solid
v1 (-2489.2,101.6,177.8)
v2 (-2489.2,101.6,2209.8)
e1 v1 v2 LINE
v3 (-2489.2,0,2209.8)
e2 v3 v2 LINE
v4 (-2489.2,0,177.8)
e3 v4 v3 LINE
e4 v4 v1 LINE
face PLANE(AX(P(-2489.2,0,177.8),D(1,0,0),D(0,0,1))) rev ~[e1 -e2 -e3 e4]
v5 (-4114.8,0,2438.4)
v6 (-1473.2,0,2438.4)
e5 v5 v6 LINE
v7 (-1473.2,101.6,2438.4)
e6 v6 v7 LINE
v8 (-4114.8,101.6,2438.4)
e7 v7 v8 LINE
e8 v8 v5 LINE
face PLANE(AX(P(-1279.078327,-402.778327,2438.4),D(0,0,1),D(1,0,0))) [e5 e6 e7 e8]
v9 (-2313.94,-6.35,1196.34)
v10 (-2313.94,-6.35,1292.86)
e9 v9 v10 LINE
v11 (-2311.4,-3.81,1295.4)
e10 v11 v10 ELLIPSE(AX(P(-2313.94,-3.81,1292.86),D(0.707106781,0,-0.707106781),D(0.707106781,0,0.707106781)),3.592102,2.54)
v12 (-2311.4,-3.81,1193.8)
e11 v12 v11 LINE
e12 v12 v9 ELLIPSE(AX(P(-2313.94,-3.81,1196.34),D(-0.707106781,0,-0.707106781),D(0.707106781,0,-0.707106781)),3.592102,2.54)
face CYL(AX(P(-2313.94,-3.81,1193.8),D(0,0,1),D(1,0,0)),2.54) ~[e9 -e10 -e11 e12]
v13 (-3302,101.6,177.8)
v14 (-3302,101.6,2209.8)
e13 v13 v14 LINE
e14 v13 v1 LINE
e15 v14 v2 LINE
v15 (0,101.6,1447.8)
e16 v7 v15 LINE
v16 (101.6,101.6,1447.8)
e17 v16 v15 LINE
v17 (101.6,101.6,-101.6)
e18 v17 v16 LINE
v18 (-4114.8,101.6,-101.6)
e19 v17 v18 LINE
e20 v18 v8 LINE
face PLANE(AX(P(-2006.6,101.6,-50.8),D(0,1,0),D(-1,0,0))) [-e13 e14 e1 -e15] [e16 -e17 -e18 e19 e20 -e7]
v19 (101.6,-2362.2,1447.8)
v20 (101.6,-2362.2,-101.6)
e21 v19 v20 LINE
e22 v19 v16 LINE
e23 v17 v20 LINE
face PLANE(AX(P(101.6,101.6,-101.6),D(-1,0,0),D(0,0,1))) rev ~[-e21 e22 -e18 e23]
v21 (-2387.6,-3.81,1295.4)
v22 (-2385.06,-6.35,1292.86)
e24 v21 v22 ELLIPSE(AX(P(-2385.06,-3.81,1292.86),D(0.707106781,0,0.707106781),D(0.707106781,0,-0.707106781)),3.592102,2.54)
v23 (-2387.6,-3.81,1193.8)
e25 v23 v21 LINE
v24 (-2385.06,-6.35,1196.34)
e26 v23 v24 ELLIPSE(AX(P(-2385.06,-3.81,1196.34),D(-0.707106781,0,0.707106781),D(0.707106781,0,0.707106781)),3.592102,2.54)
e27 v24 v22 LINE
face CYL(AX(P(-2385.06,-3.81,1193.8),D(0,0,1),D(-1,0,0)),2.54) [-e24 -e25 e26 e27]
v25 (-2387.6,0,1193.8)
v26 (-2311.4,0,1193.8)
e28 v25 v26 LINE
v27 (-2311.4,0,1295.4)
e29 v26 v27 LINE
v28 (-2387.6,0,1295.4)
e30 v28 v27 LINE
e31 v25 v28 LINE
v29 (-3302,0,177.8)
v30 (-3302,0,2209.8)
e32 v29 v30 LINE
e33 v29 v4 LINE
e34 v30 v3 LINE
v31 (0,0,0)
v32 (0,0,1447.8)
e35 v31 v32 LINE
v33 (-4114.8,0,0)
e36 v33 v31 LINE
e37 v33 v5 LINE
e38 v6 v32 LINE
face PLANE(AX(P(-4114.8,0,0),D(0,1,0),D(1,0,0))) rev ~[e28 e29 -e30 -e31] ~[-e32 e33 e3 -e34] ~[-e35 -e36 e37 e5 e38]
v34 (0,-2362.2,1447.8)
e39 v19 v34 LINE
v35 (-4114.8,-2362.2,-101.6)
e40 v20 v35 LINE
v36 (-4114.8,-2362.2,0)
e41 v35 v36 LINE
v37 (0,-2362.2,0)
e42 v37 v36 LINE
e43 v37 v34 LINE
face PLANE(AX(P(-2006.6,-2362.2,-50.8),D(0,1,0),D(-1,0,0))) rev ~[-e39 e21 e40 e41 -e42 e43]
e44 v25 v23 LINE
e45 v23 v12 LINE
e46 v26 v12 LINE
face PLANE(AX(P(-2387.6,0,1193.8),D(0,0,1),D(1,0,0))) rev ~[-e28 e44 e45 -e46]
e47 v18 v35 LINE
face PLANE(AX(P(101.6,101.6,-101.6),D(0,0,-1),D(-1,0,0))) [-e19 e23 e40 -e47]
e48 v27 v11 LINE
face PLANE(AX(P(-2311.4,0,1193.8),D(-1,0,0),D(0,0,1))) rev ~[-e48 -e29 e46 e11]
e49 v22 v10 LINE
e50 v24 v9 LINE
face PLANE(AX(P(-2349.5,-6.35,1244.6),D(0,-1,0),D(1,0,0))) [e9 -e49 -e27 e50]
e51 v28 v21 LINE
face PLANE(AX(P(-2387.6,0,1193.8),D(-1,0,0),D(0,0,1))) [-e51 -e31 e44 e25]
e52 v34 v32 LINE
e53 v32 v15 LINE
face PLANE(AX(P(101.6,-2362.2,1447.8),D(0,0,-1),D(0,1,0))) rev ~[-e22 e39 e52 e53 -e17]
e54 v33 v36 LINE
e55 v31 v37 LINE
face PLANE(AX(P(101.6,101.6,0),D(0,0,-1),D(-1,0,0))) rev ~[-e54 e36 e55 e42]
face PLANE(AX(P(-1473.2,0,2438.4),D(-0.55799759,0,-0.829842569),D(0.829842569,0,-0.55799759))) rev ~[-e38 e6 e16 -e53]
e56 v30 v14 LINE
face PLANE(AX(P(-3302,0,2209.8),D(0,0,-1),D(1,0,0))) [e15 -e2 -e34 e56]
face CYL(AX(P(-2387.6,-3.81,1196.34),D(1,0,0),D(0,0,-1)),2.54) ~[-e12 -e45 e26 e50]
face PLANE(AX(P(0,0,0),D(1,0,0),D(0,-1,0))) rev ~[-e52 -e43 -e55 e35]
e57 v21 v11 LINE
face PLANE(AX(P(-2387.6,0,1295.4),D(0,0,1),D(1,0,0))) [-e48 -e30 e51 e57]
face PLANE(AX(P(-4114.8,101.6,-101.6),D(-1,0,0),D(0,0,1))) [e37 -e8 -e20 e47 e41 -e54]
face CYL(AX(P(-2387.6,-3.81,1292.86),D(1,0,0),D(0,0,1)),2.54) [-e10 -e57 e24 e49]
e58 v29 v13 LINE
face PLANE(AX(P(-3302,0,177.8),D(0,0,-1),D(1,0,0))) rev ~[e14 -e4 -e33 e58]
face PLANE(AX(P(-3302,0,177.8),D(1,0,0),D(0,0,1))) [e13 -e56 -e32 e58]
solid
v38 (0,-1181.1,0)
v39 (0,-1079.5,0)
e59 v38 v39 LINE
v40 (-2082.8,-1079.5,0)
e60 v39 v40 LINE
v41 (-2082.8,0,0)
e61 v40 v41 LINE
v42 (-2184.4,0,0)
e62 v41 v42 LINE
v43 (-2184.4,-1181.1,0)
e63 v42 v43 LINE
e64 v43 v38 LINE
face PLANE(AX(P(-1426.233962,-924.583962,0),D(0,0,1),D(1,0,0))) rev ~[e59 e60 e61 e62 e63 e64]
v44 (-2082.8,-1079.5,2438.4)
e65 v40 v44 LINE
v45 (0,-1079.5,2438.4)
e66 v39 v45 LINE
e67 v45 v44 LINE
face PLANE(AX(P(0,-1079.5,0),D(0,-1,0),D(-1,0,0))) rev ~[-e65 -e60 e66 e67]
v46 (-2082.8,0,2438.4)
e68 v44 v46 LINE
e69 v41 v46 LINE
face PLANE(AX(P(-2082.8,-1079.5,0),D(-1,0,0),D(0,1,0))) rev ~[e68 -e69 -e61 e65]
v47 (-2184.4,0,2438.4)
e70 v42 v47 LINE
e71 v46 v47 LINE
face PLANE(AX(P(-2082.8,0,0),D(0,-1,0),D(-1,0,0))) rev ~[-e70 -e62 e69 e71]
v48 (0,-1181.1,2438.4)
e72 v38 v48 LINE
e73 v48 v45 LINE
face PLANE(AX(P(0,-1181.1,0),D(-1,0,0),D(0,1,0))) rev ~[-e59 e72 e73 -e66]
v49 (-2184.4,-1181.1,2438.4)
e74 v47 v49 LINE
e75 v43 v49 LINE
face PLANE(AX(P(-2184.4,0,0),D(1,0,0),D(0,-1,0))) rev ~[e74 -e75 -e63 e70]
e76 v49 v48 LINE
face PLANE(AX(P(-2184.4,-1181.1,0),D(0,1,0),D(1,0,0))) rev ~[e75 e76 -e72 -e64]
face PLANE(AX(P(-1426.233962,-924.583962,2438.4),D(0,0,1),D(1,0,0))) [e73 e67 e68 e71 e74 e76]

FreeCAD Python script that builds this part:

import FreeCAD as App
import Part
import Sketcher
Q = App.Units.Quantity


def edges_at(feature, points):
    """Names of the edges that pass closest to the given points."""
    edges = feature.Shape.Edges
    near = lambda p: min(range(len(edges)), key=lambda i: edges[i].distToShape(Part.Vertex(*p))[0])
    return sorted({f"Edge{near(p) + 1}" for p in points})

doc = App.newDocument("Part")
body = doc.addObject("PartDesign::Body", "Body")

# Sketch on XY plane
sketch1 = body.newObject("Sketcher::SketchObject", "Sketch")
sketch1.AttachmentSupport = (doc.getObject("XY_Plane"), [""])
sketch1.MapMode = "FlatFace"
sketch1.addGeometry(Part.LineSegment(App.Vector(-4115, 0, 0), App.Vector(0, 0, 0)), False)
sketch1.addGeometry(Part.LineSegment(App.Vector(0, 0, 0), App.Vector(0, -2362, 0)), False)
sketch1.addGeometry(Part.LineSegment(App.Vector(0, -2362, 0), App.Vector(102, -2362, 0)), False)
sketch1.addGeometry(Part.LineSegment(App.Vector(102, -2362, 0), App.Vector(102, 102, 0)), False)
sketch1.addGeometry(Part.LineSegment(App.Vector(102, 102, 0), App.Vector(-4115, 102, 0)), False)
sketch1.addGeometry(Part.LineSegment(App.Vector(-4115, 102, 0), App.Vector(-4115, 0, 0)), False)
sketch1.addConstraint(Sketcher.Constraint("Coincident", 0, 2, 1, 1))
sketch1.addConstraint(Sketcher.Constraint("Coincident", 1, 2, 2, 1))
sketch1.addConstraint(Sketcher.Constraint("Coincident", 2, 2, 3, 1))
sketch1.addConstraint(Sketcher.Constraint("Coincident", 3, 2, 4, 1))
sketch1.addConstraint(Sketcher.Constraint("Coincident", 4, 2, 5, 1))
sketch1.addConstraint(Sketcher.Constraint("Coincident", 5, 2, 0, 1))
sketch1.addConstraint(Sketcher.Constraint("Horizontal", 0))
sketch1.addConstraint(Sketcher.Constraint("Vertical", 1))
sketch1.addConstraint(Sketcher.Constraint("Horizontal", 2))
sketch1.addConstraint(Sketcher.Constraint("Vertical", 3))
sketch1.addConstraint(Sketcher.Constraint("Horizontal", 4))
sketch1.addConstraint(Sketcher.Constraint("Vertical", 5))
sketch1.addConstraint(Sketcher.Constraint("Coincident", 0, 2, -1, 1))
sketch1.addConstraint(Sketcher.Constraint("Equal", 2, 5))
sketch1.addConstraint(Sketcher.Constraint("DistanceX", 0, 1, 0, 2, Q("162 in")))
sketch1.addConstraint(Sketcher.Constraint("DistanceX", 2, 1, 2, 2, Q("4 in")))
sketch1.addConstraint(Sketcher.Constraint("DistanceY", 1, 2, 1, 1, Q("93 in")))
pad1 = body.newObject("PartDesign::Pad", "Pad")
pad1.Profile = sketch1
pad1.Length = Q("96 in")

# Sketch on XZ plane
sketch2 = body.newObject("Sketcher::SketchObject", "Sketch001")
sketch2.AttachmentSupport = (doc.getObject("XZ_Plane"), [""])
sketch2.MapMode = "FlatFace"
sketch2.addGeometry(Part.LineSegment(App.Vector(-3302, 2210, 0), App.Vector(-3302, 178, 0)), False)
sketch2.addGeometry(Part.LineSegment(App.Vector(-3302, 178, 0), App.Vector(-2489, 178, 0)), False)
sketch2.addGeometry(Part.LineSegment(App.Vector(-2489, 178, 0), App.Vector(-2489, 2210, 0)), False)
sketch2.addGeometry(Part.LineSegment(App.Vector(-2489, 2210, 0), App.Vector(-3302, 2210, 0)), False)
sketch2.addGeometry(Part.LineSegment(App.Vector(-1473, 2438, 0), App.Vector(0, 1448, 0)), False)
sketch2.addGeometry(Part.LineSegment(App.Vector(0, 1448, 0), App.Vector(0, 2438, 0)), False)
sketch2.addGeometry(Part.LineSegment(App.Vector(0, 2438, 0), App.Vector(-1473, 2438, 0)), False)
sketch2.addConstraint(Sketcher.Constraint("Coincident", 0, 2, 1, 1))
sketch2.addConstraint(Sketcher.Constraint("Coincident", 1, 2, 2, 1))
sketch2.addConstraint(Sketcher.Constraint("Coincident", 2, 2, 3, 1))
sketch2.addConstraint(Sketcher.Constraint("Coincident", 3, 2, 0, 1))
sketch2.addConstraint(Sketcher.Constraint("Coincident", 4, 2, 5, 1))
sketch2.addConstraint(Sketcher.Constraint("Coincident", 5, 2, 6, 1))
sketch2.addConstraint(Sketcher.Constraint("Coincident", 6, 2, 4, 1))
sketch2.addConstraint(Sketcher.Constraint("Vertical", 0))
sketch2.addConstraint(Sketcher.Constraint("Horizontal", 1))
sketch2.addConstraint(Sketcher.Constraint("Vertical", 2))
sketch2.addConstraint(Sketcher.Constraint("Horizontal", 3))
sketch2.addConstraint(Sketcher.Constraint("Vertical", 5))
sketch2.addConstraint(Sketcher.Constraint("Horizontal", 6))
sketch2.addConstraint(Sketcher.Constraint("PointOnObject", 4, 2, -2))
sketch2.addConstraint(Sketcher.Constraint("DistanceX", 1, 1, 1, 2, Q("32 in")))
sketch2.addConstraint(Sketcher.Constraint("DistanceX", 6, 2, 6, 1, Q("58 in")))
sketch2.addConstraint(Sketcher.Constraint("DistanceY", 0, 2, 0, 1, Q("80 in")))
sketch2.addConstraint(Sketcher.Constraint("DistanceY", 5, 1, 5, 2, Q("39 in")))
sketch2.addConstraint(Sketcher.Constraint("DistanceX", 0, 2, -1, 1, Q("130 in")))
sketch2.addConstraint(Sketcher.Constraint("DistanceY", -1, 1, 0, 2, Q("7 in")))
sketch2.addConstraint(Sketcher.Constraint("DistanceY", -1, 1, 4, 2, Q("57 in")))
pocket1 = body.newObject("PartDesign::Pocket", "Pocket")
pocket1.Profile = sketch2
pocket1.Type = "ThroughAll"

# Sketch on YZ plane
sketch3 = body.newObject("Sketcher::SketchObject", "Sketch002")
sketch3.AttachmentSupport = (doc.getObject("YZ_Plane"), [""])
sketch3.MapMode = "FlatFace"
sketch3.AttachmentOffset = App.Placement(App.Vector(0, 0, 4 * 25.4), App.Rotation())
sketch3.addGeometry(Part.LineSegment(App.Vector(-2362, 2438, 0), App.Vector(-2362, 1448, 0)), False)
sketch3.addGeometry(Part.LineSegment(App.Vector(-2362, 1448, 0), App.Vector(102, 1448, 0)), False)
sketch3.addGeometry(Part.LineSegment(App.Vector(102, 1448, 0), App.Vector(102, 2438, 0)), False)
sketch3.addGeometry(Part.LineSegment(App.Vector(102, 2438, 0), App.Vector(-2362, 2438, 0)), False)
sketch3.addConstraint(Sketcher.Constraint("Coincident", 0, 2, 1, 1))
sketch3.addConstraint(Sketcher.Constraint("Coincident", 1, 2, 2, 1))
sketch3.addConstraint(Sketcher.Constraint("Coincident", 2, 2, 3, 1))
sketch3.addConstraint(Sketcher.Constraint("Coincident", 3, 2, 0, 1))
sketch3.addConstraint(Sketcher.Constraint("Vertical", 0))
sketch3.addConstraint(Sketcher.Constraint("Horizontal", 1))
sketch3.addConstraint(Sketcher.Constraint("Vertical", 2))
sketch3.addConstraint(Sketcher.Constraint("Horizontal", 3))
sketch3.addConstraint(Sketcher.Constraint("DistanceX", 1, 1, 1, 2, Q("97 in")))
sketch3.addConstraint(Sketcher.Constraint("DistanceY", 0, 2, 0, 1, Q("39 in")))
sketch3.addConstraint(Sketcher.Constraint("DistanceX", 0, 2, -1, 1, Q("93 in")))
sketch3.addConstraint(Sketcher.Constraint("DistanceY", -1, 1, 0, 2, Q("57 in")))
pocket2 = body.newObject("PartDesign::Pocket", "Pocket001")
pocket2.Profile = sketch3
pocket2.Length = Q("4 in")

# Sketch on XZ plane
sketch4 = body.newObject("Sketcher::SketchObject", "Sketch003")
sketch4.AttachmentSupport = (doc.getObject("XZ_Plane"), [""])
sketch4.MapMode = "FlatFace"
sketch4.AttachmentOffset = App.Placement(App.Vector(0, 0, -4 * 25.4), App.Rotation())
sketch4.addGeometry(Part.LineSegment(App.Vector(102, 0, 0), App.Vector(102, -102, 0)), False)
sketch4.addGeometry(Part.LineSegment(App.Vector(102, -102, 0), App.Vector(-4115, -102, 0)), False)
sketch4.addGeometry(Part.LineSegment(App.Vector(-4115, -102, 0), App.Vector(-4115, 0, 0)), False)
sketch4.addGeometry(Part.LineSegment(App.Vector(-4115, 0, 0), App.Vector(102, 0, 0)), False)
sketch4.addConstraint(Sketcher.Constraint("Coincident", 0, 2, 1, 1))
sketch4.addConstraint(Sketcher.Constraint("Coincident", 1, 2, 2, 1))
sketch4.addConstraint(Sketcher.Constraint("Coincident", 2, 2, 3, 1))
sketch4.addConstraint(Sketcher.Constraint("Coincident", 3, 2, 0, 1))
sketch4.addConstraint(Sketcher.Constraint("Vertical", 0))
sketch4.addConstraint(Sketcher.Constraint("Horizontal", 1))
sketch4.addConstraint(Sketcher.Constraint("Vertical", 2))
sketch4.addConstraint(Sketcher.Constraint("Horizontal", 3))
sketch4.addConstraint(Sketcher.Constraint("PointOnObject", 2, 2, -1))
sketch4.addConstraint(Sketcher.Constraint("DistanceX", 1, 2, 1, 1, Q("166 in")))
sketch4.addConstraint(Sketcher.Constraint("DistanceY", 0, 2, 0, 1, Q("4 in")))
sketch4.addConstraint(Sketcher.Constraint("DistanceX", -1, 1, 0, 2, Q("4 in")))
pad2 = body.newObject("PartDesign::Pad", "Pad001")
pad2.Profile = sketch4
pad2.Length = Q("97 in")

# Sketch on XZ plane
sketch5 = body.newObject("Sketcher::SketchObject", "Sketch004")
sketch5.AttachmentSupport = (doc.getObject("XZ_Plane"), [""])
sketch5.MapMode = "FlatFace"
sketch5.addGeometry(Part.LineSegment(App.Vector(-2388, 1295, 0), App.Vector(-2388, 1194, 0)), False)
sketch5.addGeometry(Part.LineSegment(App.Vector(-2388, 1194, 0), App.Vector(-2311, 1194, 0)), False)
sketch5.addGeometry(Part.LineSegment(App.Vector(-2311, 1194, 0), App.Vector(-2311, 1295, 0)), False)
sketch5.addGeometry(Part.LineSegment(App.Vector(-2311, 1295, 0), App.Vector(-2388, 1295, 0)), False)
sketch5.addConstraint(Sketcher.Constraint("Coincident", 0, 2, 1, 1))
sketch5.addConstraint(Sketcher.Constraint("Coincident", 1, 2, 2, 1))
sketch5.addConstraint(Sketcher.Constraint("Coincident", 2, 2, 3, 1))
sketch5.addConstraint(Sketcher.Constraint("Coincident", 3, 2, 0, 1))
sketch5.addConstraint(Sketcher.Constraint("Vertical", 0))
sketch5.addConstraint(Sketcher.Constraint("Horizontal", 1))
sketch5.addConstraint(Sketcher.Constraint("Vertical", 2))
sketch5.addConstraint(Sketcher.Constraint("Horizontal", 3))
sketch5.addConstraint(Sketcher.Constraint("DistanceX", 1, 1, 1, 2, Q("3 in")))
sketch5.addConstraint(Sketcher.Constraint("DistanceY", 0, 2, 0, 1, Q("4 in")))
sketch5.addConstraint(Sketcher.Constraint("DistanceX", 0, 2, -1, 1, Q("94 in")))
sketch5.addConstraint(Sketcher.Constraint("DistanceY", -1, 1, 0, 2, Q("47 in")))
pad3 = body.newObject("PartDesign::Pad", "Pad002")
pad3.Profile = sketch5
pad3.Length = Q("0.25 in")
doc.recompute()

fillet = body.newObject("PartDesign::Fillet", "Fillet")
fillet.Base = (pad3, edges_at(pad3, [
    (-2349.5, -6.35, 1295.4),
    (-2387.6, -6.35, 1244.6),
    (-2349.5, -6.35, 1193.8),
    (-2311.4, -6.35, 1244.6),
]))
fillet.Radius = Q("0.1 in")
body2 = doc.addObject("PartDesign::Body", "Body001")

# Sketch on XZ plane
sketch6 = body2.newObject("Sketcher::SketchObject", "Sketch005")
sketch6.AttachmentSupport = (doc.getObject("XZ_Plane001"), [""])
sketch6.MapMode = "FlatFace"
sketch6.addGeometry(Part.LineSegment(App.Vector(-2210, 0, 0), App.Vector(0, 0, 0)), False)
sketch6.addGeometry(Part.LineSegment(App.Vector(0, 0, 0), App.Vector(0, 1448, 0)), False)
sketch6.addGeometry(Part.LineSegment(App.Vector(0, 1448, 0), App.Vector(-1473, 2438, 0)), False)
sketch6.addGeometry(Part.LineSegment(App.Vector(-1473, 2438, 0), App.Vector(-2210, 2438, 0)), False)
sketch6.addGeometry(Part.LineSegment(App.Vector(-2210, 2438, 0), App.Vector(-2210, 0, 0)), False)
sketch6.addConstraint(Sketcher.Constraint("Coincident", 0, 2, 1, 1))
sketch6.addConstraint(Sketcher.Constraint("Coincident", 1, 2, 2, 1))
sketch6.addConstraint(Sketcher.Constraint("Coincident", 2, 2, 3, 1))
sketch6.addConstraint(Sketcher.Constraint("Coincident", 3, 2, 4, 1))
sketch6.addConstraint(Sketcher.Constraint("Coincident", 4, 2, 0, 1))
sketch6.addConstraint(Sketcher.Constraint("Horizontal", 0))
sketch6.addConstraint(Sketcher.Constraint("Vertical", 1))
sketch6.addConstraint(Sketcher.Constraint("Horizontal", 3))
sketch6.addConstraint(Sketcher.Constraint("Vertical", 4))
sketch6.addConstraint(Sketcher.Constraint("Coincident", 0, 2, -1, 1))
sketch6.addConstraint(Sketcher.Constraint("DistanceX", 0, 1, 0, 2, Q("87 in")))
sketch6.addConstraint(Sketcher.Constraint("DistanceX", 3, 2, 3, 1, Q("29 in")))
sketch6.addConstraint(Sketcher.Constraint("DistanceY", 1, 1, 1, 2, Q("57 in")))
sketch6.addConstraint(Sketcher.Constraint("DistanceY", 4, 2, 4, 1, Q("96 in")))
pad4 = body2.newObject("PartDesign::Pad", "Pad003")
pad4.Profile = sketch6
pad4.Length = Q("36 in")
body3 = doc.addObject("PartDesign::Body", "Body002")

# Sketch on XY plane
sketch7 = body3.newObject("Sketcher::SketchObject", "Sketch006")
sketch7.AttachmentSupport = (doc.getObject("XY_Plane002"), [""])
sketch7.MapMode = "FlatFace"
sketch7.addGeometry(Part.LineSegment(App.Vector(-2184, -1181, 0), App.Vector(0, -1181, 0)), False)
sketch7.addGeometry(Part.LineSegment(App.Vector(0, -1181, 0), App.Vector(0, -1080, 0)), False)
sketch7.addGeometry(Part.LineSegment(App.Vector(0, -1080, 0), App.Vector(-2083, -1080, 0)), False)
sketch7.addGeometry(Part.LineSegment(App.Vector(-2083, -1080, 0), App.Vector(-2083, 0, 0)), False)
sketch7.addGeometry(Part.LineSegment(App.Vector(-2083, 0, 0), App.Vector(-2184, 0, 0)), False)
sketch7.addGeometry(Part.LineSegment(App.Vector(-2184, 0, 0), App.Vector(-2184, -1181, 0)), False)
sketch7.addConstraint(Sketcher.Constraint("Coincident", 0, 2, 1, 1))
sketch7.addConstraint(Sketcher.Constraint("Coincident", 1, 2, 2, 1))
sketch7.addConstraint(Sketcher.Constraint("Coincident", 2, 2, 3, 1))
sketch7.addConstraint(Sketcher.Constraint("Coincident", 3, 2, 4, 1))
sketch7.addConstraint(Sketcher.Constraint("Coincident", 4, 2, 5, 1))
sketch7.addConstraint(Sketcher.Constraint("Coincident", 5, 2, 0, 1))
sketch7.addConstraint(Sketcher.Constraint("Horizontal", 0))
sketch7.addConstraint(Sketcher.Constraint("Vertical", 1))
sketch7.addConstraint(Sketcher.Constraint("Horizontal", 2))
sketch7.addConstraint(Sketcher.Constraint("Vertical", 3))
sketch7.addConstraint(Sketcher.Constraint("Horizontal", 4))
sketch7.addConstraint(Sketcher.Constraint("Vertical", 5))
sketch7.addConstraint(Sketcher.Constraint("PointOnObject", 0, 2, -2))
sketch7.addConstraint(Sketcher.Constraint("PointOnObject", 3, 2, -1))
sketch7.addConstraint(Sketcher.Constraint("Equal", 4, 1))
sketch7.addConstraint(Sketcher.Constraint("DistanceX", 0, 1, 0, 2, Q("86 in")))
sketch7.addConstraint(Sketcher.Constraint("DistanceX", 2, 2, 2, 1, Q("82 in")))
sketch7.addConstraint(Sketcher.Constraint("DistanceY", 3, 1, 3, 2, Q("42.5 in")))
pad5 = body3.newObject("PartDesign::Pad", "Pad004")
pad5.Profile = sketch7
pad5.Length = Q("96 in")
body2.Visibility = False

doc.recompute()
